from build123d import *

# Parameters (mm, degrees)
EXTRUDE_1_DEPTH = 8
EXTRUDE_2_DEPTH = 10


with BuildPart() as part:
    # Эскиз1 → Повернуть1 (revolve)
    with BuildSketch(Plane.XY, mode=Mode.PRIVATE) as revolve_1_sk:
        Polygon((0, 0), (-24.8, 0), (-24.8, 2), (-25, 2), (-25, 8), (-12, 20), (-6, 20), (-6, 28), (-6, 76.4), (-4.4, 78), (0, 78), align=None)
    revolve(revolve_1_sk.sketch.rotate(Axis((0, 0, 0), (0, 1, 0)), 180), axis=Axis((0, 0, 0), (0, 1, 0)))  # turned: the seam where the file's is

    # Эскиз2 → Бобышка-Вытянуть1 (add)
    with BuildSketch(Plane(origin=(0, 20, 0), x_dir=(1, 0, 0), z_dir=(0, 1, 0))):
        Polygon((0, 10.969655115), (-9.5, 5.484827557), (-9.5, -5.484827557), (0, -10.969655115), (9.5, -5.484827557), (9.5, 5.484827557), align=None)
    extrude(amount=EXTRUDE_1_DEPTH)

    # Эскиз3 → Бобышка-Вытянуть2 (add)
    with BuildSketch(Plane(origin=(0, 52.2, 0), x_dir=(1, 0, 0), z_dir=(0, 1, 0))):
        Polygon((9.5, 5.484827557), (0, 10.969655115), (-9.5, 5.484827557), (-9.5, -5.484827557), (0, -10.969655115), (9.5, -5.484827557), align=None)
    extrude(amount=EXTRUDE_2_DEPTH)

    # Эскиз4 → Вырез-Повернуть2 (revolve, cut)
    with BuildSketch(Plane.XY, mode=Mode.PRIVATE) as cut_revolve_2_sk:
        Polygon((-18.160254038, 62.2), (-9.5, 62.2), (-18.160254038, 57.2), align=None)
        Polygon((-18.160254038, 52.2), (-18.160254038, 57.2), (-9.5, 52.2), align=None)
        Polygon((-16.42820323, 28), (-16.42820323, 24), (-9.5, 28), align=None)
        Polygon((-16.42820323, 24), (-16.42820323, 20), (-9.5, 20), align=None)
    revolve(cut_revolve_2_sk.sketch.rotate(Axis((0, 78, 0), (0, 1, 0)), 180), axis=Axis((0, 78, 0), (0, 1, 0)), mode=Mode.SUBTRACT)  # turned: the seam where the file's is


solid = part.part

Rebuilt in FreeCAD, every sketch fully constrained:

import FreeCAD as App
import Part
import Sketcher
Q = App.Units.Quantity


def add_polygon(sketch, points):
    """Adds a closed chain of lines whose ends are joined by coincident constraints."""
    first, n = sketch.GeometryCount, len(points)
    for a, b in zip(points, points[1:] + points[:1]):
        sketch.addGeometry(Part.LineSegment(App.Vector(*a, 0), App.Vector(*b, 0)), False)
    for i in range(n):
        sketch.addConstraint(Sketcher.Constraint("Coincident", first + i, 2, first + (i + 1) % n, 1))

doc = App.newDocument("Part")
body = doc.addObject("PartDesign::Body", "Body")

# Sketch on XY plane
sketch1 = body.newObject("Sketcher::SketchObject", "Sketch")
sketch1.AttachmentSupport = (doc.getObject("XY_Plane"), [""])
sketch1.MapMode = "FlatFace"
add_polygon(sketch1, [(-24.8, 0), (0, 0), (0, 78), (-4.4, 78), (-6, 76.4), (-6, 20), (-12, 20), (-25, 8), (-25, 2), (-24.8, 2)])  # lines 0-9
sketch1.addConstraint([
    Sketcher.Constraint("Horizontal", 0),
    Sketcher.Constraint("Vertical", 1),
    Sketcher.Constraint("Horizontal", 2),
    Sketcher.Constraint("Vertical", 4),
    Sketcher.Constraint("Horizontal", 5),
    Sketcher.Constraint("Vertical", 7),
    Sketcher.Constraint("Horizontal", 8),
    Sketcher.Constraint("Vertical", 9),
    Sketcher.Constraint("Coincident", 0, 2, -1, 1),
    Sketcher.Constraint("Equal", 5, 7),
    Sketcher.Constraint("DistanceX", 5, 2, 5, 1, 6.0),
    Sketcher.Constraint("DistanceY", 1, 1, 1, 2, 78.0),
    Sketcher.Constraint("DistanceY", 9, 2, 9, 1, 2.0),
    Sketcher.Constraint("Angle", 3, Q("-135 deg")),
    Sketcher.Constraint("DistanceX", 0, 1, 0, 2, 24.8),
    Sketcher.Constraint("DistanceX", 2, 2, 2, 1, 4.4),
    Sketcher.Constraint("DistanceX", 8, 1, 8, 2, 0.2),
    Sketcher.Constraint("DistanceY", 4, 2, 4, 1, 56.4),
    Sketcher.Constraint("DistanceX", 3, 2, -1, 1, 6.0),
])
revolution = body.newObject("PartDesign::Revolution", "Revolution")
revolution.Profile = sketch1
revolution.ReferenceAxis = (sketch1, ["V_Axis"])
revolution.Angle = 360

# Sketch on XZ plane
sketch2 = body.newObject("Sketcher::SketchObject", "Sketch001")
sketch2.AttachmentSupport = (doc.getObject("XZ_Plane"), [""])
sketch2.MapMode = "FlatFace"
sketch2.AttachmentOffset = App.Placement(App.Vector(0, 0, -20), App.Rotation())
add_polygon(sketch2, [(0, -11), (-10, -5), (-10, 5), (0, 11), (10, 5), (10, -5)])  # lines 0-5
sketch2.addConstraint([
    Sketcher.Constraint("Vertical", 1),
    Sketcher.Constraint("Vertical", 4),
    Sketcher.Constraint("Symmetric", 0, 2, 3, 2, -1, 1),
    Sketcher.Constraint("Symmetric", 2, 2, 5, 2, -1, 1),
    Sketcher.Constraint("PointOnObject", 2, 2, -2),
    Sketcher.Constraint("Parallel", 2, 5),
    Sketcher.Constraint("Horizontal", 1, 2, 3, 2),
    Sketcher.Constraint("Angle", 0, Q("150 deg")),
    Sketcher.Constraint("DistanceX", 1, 2, 3, 2, 19.0),
    Sketcher.Constraint("DistanceY", 1, 1, 1, 2, 10.969655),
])
pad1 = body.newObject("PartDesign::Pad", "Pad")
pad1.Profile = sketch2
pad1.Length = 8
pad1.Reversed = True

# Sketch on XZ plane
sketch3 = body.newObject("Sketcher::SketchObject", "Sketch002")
sketch3.AttachmentSupport = (doc.getObject("XZ_Plane"), [""])
sketch3.MapMode = "FlatFace"
sketch3.AttachmentOffset = App.Placement(App.Vector(0, 0, -52.2), App.Rotation())
add_polygon(sketch3, [(10, -5), (0, -11), (-10, -5), (-10, 5), (0, 11), (10, 5)])  # lines 0-5
sketch3.addConstraint([
    Sketcher.Constraint("Vertical", 2),
    Sketcher.Constraint("Vertical", 5),
    Sketcher.Constraint("Symmetric", 0, 2, 3, 2, -1, 1),
    Sketcher.Constraint("Symmetric", 1, 2, 4, 2, -1, 1),
    Sketcher.Constraint("PointOnObject", 0, 2, -2),
    Sketcher.Constraint("Parallel", 0, 3),
    Sketcher.Constraint("Horizontal", 2, 2, 4, 2),
    Sketcher.Constraint("Angle", 0, Q("-150 deg")),
    Sketcher.Constraint("DistanceX", 2, 2, 4, 2, 19.0),
    Sketcher.Constraint("DistanceY", 2, 1, 2, 2, 10.969655),
])
pad2 = body.newObject("PartDesign::Pad", "Pad001")
pad2.Profile = sketch3
pad2.Length = 10
pad2.Reversed = True

# Sketch on XY plane
sketch4 = body.newObject("Sketcher::SketchObject", "Sketch003")
sketch4.AttachmentSupport = (doc.getObject("XY_Plane"), [""])
sketch4.MapMode = "FlatFace"
add_polygon(sketch4, [(-9.5, 62.2), (-18.2, 62.2), (-18.2, 57.2)])  # lines 0-2
add_polygon(sketch4, [(-18.2, 57.2), (-18.2, 52.2), (-9.5, 52.2)])  # lines 3-5
add_polygon(sketch4, [(-16.4, 28), (-16.4, 24), (-9.5, 28)])  # lines 6-8
add_polygon(sketch4, [(-16.4, 24), (-16.4, 20), (-9.5, 20)])  # lines 9-11
sketch4.addConstraint([
    Sketcher.Constraint("Horizontal", 0),
    Sketcher.Constraint("Vertical", 1),
    Sketcher.Constraint("Vertical", 3),
    Sketcher.Constraint("Horizontal", 4),
    Sketcher.Constraint("Vertical", 6),
    Sketcher.Constraint("Horizontal", 8),
    Sketcher.Constraint("Vertical", 9),
    Sketcher.Constraint("Horizontal", 10),
    Sketcher.Constraint("Coincident", 5, 2, 1, 2),
    Sketcher.Constraint("Coincident", 11, 2, 6, 2),
    Sketcher.Constraint("Parallel", 2, 7),
    Sketcher.Constraint("Parallel", 5, 11),
    Sketcher.Constraint("Vertical", 2, 2, 4, 2),
    Sketcher.Constraint("Vertical", 4, 2, 7, 2),
    Sketcher.Constraint("Vertical", 7, 2, 10, 2),
    Sketcher.Constraint("Equal", 1, 3),
    Sketcher.Constraint("DistanceY", 1, 2, 1, 1, 5.0),
    Sketcher.Constraint("DistanceY", 6, 2, 6, 1, 4.0),
    Sketcher.Constraint("Angle", 2, Q("30 deg")),
    Sketcher.Constraint("DistanceY", -1, 1, 6, 2, 24.0),
    Sketcher.Constraint("DistanceY", -1, 1, 0, 2, 62.2),
    Sketcher.Constraint("DistanceX", 2, 2, -1, 1, 9.5),
])
groove = body.newObject("PartDesign::Groove", "Groove")
groove.Profile = sketch4
groove.ReferenceAxis = (sketch4, ["V_Axis"])
groove.Angle = 360

doc.recompute()
